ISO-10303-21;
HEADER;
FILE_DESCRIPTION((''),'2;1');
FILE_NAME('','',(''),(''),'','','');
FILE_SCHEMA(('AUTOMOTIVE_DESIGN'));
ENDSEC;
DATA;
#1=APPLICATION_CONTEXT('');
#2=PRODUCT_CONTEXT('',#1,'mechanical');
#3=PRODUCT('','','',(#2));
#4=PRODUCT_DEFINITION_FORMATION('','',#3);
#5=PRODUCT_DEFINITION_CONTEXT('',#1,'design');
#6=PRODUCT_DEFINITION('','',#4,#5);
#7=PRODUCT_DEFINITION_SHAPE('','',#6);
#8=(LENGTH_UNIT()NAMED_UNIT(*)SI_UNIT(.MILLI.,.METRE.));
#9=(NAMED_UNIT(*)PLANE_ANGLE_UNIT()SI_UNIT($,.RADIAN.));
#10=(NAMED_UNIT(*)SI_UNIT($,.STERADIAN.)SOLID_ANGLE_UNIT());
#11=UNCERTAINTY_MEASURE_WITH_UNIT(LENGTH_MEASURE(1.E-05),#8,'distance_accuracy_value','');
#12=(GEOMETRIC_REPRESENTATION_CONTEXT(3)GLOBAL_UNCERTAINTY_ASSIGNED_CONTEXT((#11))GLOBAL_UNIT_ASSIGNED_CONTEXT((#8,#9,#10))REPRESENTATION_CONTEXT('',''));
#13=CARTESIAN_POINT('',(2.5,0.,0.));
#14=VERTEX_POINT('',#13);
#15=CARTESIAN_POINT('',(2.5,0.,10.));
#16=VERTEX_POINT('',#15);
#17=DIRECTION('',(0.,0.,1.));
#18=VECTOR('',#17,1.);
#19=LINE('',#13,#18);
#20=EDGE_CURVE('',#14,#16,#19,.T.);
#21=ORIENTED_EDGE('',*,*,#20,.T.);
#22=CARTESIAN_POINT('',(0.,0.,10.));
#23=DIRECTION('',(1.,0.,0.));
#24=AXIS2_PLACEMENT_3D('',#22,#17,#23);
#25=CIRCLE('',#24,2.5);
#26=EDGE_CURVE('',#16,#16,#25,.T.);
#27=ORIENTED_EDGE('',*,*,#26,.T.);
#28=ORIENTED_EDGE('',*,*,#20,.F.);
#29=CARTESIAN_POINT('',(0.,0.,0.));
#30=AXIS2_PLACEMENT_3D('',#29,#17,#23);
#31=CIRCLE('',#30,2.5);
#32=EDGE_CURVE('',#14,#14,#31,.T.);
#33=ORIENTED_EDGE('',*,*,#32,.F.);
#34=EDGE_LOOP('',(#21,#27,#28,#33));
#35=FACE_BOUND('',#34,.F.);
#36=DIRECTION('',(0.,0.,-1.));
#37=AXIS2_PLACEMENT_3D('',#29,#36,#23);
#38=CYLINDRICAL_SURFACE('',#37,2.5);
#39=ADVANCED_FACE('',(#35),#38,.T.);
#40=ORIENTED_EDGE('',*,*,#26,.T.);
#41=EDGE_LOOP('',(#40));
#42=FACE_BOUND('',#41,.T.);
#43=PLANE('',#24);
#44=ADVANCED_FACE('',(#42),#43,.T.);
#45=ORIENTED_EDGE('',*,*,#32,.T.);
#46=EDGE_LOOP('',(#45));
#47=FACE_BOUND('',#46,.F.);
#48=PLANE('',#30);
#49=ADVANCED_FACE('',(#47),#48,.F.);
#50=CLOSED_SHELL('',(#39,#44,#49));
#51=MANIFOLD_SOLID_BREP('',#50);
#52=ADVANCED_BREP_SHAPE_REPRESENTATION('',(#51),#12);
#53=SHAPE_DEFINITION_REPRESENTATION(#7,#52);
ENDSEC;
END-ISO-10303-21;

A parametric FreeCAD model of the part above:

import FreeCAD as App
import Part
import Sketcher

V = App.Vector

doc = App.newDocument("Part")
body = doc.addObject("PartDesign::Body", "Body")

sketch1 = body.newObject("Sketcher::SketchObject", "Sketch")
sketch1.AttachmentSupport = (doc.getObject("XY_Plane"), [""])
sketch1.MapMode = "FlatFace"
sketch1.addGeometry(Part.Circle(V(0, 0, 0), V(0, 0, 1), 2.5), False)
sketch1.addConstraint([
    Sketcher.Constraint("Coincident", 0, 3, -1, 1),
    Sketcher.Constraint("Diameter", 0, 5.0),
])
pad1 = body.newObject("PartDesign::Pad", "Pad")
pad1.Profile = sketch1
pad1.Length = 10

doc.recompute()
